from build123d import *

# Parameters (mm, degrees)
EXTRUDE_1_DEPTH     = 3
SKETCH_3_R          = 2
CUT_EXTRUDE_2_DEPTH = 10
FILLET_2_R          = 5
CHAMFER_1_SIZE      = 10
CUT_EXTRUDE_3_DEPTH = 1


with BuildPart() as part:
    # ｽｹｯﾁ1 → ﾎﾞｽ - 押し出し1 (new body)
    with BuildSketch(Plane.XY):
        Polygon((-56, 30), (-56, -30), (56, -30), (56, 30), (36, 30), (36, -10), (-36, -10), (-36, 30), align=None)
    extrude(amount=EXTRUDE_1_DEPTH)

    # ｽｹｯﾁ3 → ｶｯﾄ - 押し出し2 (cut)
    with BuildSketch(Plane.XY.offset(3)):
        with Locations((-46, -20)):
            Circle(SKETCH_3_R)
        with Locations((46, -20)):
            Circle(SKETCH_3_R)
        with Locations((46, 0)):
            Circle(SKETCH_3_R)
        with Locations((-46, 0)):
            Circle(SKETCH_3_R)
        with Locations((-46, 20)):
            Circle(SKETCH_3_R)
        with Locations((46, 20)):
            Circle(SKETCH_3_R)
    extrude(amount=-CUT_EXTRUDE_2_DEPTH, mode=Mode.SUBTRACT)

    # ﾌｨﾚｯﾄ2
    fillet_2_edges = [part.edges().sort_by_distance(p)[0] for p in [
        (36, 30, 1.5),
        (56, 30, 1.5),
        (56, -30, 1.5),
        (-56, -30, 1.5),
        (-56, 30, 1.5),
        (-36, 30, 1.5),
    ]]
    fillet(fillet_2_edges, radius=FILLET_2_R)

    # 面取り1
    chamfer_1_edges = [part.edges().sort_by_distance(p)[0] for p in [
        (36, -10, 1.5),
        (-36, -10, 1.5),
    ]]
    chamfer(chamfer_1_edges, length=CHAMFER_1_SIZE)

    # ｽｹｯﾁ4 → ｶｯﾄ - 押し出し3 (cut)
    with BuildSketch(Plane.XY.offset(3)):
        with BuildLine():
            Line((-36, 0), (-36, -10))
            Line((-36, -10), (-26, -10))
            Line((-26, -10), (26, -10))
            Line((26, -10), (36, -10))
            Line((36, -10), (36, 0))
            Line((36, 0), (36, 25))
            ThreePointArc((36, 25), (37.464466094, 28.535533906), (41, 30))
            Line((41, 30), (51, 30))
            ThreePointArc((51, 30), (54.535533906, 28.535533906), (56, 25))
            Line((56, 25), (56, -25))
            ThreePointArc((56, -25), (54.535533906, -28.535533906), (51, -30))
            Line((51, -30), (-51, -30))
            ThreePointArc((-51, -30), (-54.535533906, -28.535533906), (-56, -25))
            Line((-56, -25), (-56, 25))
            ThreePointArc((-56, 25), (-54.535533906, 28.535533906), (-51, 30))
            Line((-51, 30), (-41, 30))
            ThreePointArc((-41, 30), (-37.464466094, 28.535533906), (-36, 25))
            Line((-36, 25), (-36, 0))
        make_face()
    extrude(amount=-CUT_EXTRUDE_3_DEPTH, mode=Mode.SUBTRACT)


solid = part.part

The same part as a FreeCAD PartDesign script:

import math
import FreeCAD as App
import Part
import Sketcher

V = App.Vector
Q = App.Units.Quantity


def edges_at(feature, points):
    """Names of the edges that pass closest to the given points."""
    edges = feature.Shape.Edges
    near = lambda p: min(range(len(edges)), key=lambda i: edges[i].distToShape(Part.Vertex(*p))[0])
    return sorted({f"Edge{near(p) + 1}" for p in points})

doc = App.newDocument("Part")
body = doc.addObject("PartDesign::Body", "Body")

sketch1 = doc.addObject("Sketcher::SketchObject", "Sketch")
body.addObject(sketch1)
sketch1.AttachmentSupport = (doc.XY_Plane, [""])
sketch1.MapMode = "FlatFace"
sketch1.addGeometry(Part.LineSegment(V(-56, 30, 0), V(-56, -30, 0)), False)
sketch1.addGeometry(Part.LineSegment(V(-56, -30, 0), V(56, -30, 0)), False)
sketch1.addGeometry(Part.LineSegment(V(56, -30, 0), V(56, 30, 0)), False)
sketch1.addGeometry(Part.LineSegment(V(56, 30, 0), V(36, 30, 0)), False)
sketch1.addGeometry(Part.LineSegment(V(36, 30, 0), V(36, -10, 0)), False)
sketch1.addGeometry(Part.LineSegment(V(36, -10, 0), V(-36, -10, 0)), False)
sketch1.addGeometry(Part.LineSegment(V(-36, -10, 0), V(-36, 30, 0)), False)
sketch1.addGeometry(Part.LineSegment(V(-36, 30, 0), V(-56, 30, 0)), False)
sketch1.addConstraint(Sketcher.Constraint("Coincident", 0, 2, 1, 1))
sketch1.addConstraint(Sketcher.Constraint("Coincident", 1, 2, 2, 1))
sketch1.addConstraint(Sketcher.Constraint("Coincident", 2, 2, 3, 1))
sketch1.addConstraint(Sketcher.Constraint("Coincident", 3, 2, 4, 1))
sketch1.addConstraint(Sketcher.Constraint("Coincident", 4, 2, 5, 1))
sketch1.addConstraint(Sketcher.Constraint("Coincident", 5, 2, 6, 1))
sketch1.addConstraint(Sketcher.Constraint("Coincident", 6, 2, 7, 1))
sketch1.addConstraint(Sketcher.Constraint("Coincident", 7, 2, 0, 1))
sketch1.addConstraint(Sketcher.Constraint("Vertical", 0))
sketch1.addConstraint(Sketcher.Constraint("Horizontal", 1))
sketch1.addConstraint(Sketcher.Constraint("Vertical", 2))
sketch1.addConstraint(Sketcher.Constraint("Horizontal", 3))
sketch1.addConstraint(Sketcher.Constraint("Vertical", 4))
sketch1.addConstraint(Sketcher.Constraint("Horizontal", 5))
sketch1.addConstraint(Sketcher.Constraint("Vertical", 6))
sketch1.addConstraint(Sketcher.Constraint("Horizontal", 7))
sketch1.addConstraint(Sketcher.Constraint("Symmetric", 0, 2, 2, 2, -1, 1))
sketch1.addConstraint(Sketcher.Constraint("Symmetric", 3, 2, 6, 2, -2))
sketch1.addConstraint(Sketcher.Constraint("DistanceX", 1, 1, 1, 2, Q("112 mm")))
sketch1.addConstraint(Sketcher.Constraint("DistanceX", 3, 2, 3, 1, Q("20 mm")))
sketch1.addConstraint(Sketcher.Constraint("DistanceY", 0, 2, 0, 1, Q("60 mm")))
sketch1.addConstraint(Sketcher.Constraint("DistanceY", 4, 2, 4, 1, Q("40 mm")))
pad1 = doc.addObject("PartDesign::Pad", "Pad")
body.addObject(pad1)
pad1.Profile = sketch1
pad1.Length = 3

sketch2 = doc.addObject("Sketcher::SketchObject", "Sketch001")
body.addObject(sketch2)
sketch2.AttachmentSupport = (doc.XY_Plane, [""])
sketch2.MapMode = "FlatFace"
sketch2.AttachmentOffset = App.Placement(V(0, 0, 3), App.Rotation())
sketch2.addGeometry(Part.Circle(V(-46, -20, 0), V(0, 0, 1), 2), False)
sketch2.addGeometry(Part.Circle(V(46, -20, 0), V(0, 0, 1), 2), False)
sketch2.addGeometry(Part.Circle(V(46, 0, 0), V(0, 0, 1), 2), False)
sketch2.addGeometry(Part.Circle(V(-46, 0, 0), V(0, 0, 1), 2), False)
sketch2.addGeometry(Part.Circle(V(-46, 20, 0), V(0, 0, 1), 2), False)
sketch2.addGeometry(Part.Circle(V(46, 20, 0), V(0, 0, 1), 2), False)
sketch2.addConstraint(Sketcher.Constraint("Equal", 0, 1))
sketch2.addConstraint(Sketcher.Constraint("Equal", 1, 2))
sketch2.addConstraint(Sketcher.Constraint("Equal", 2, 3))
sketch2.addConstraint(Sketcher.Constraint("Equal", 3, 4))
sketch2.addConstraint(Sketcher.Constraint("Equal", 4, 5))
sketch2.addConstraint(Sketcher.Constraint("Symmetric", 2, 3, 3, 3, -1, 1))
sketch2.addConstraint(Sketcher.Constraint("Symmetric", 1, 3, 4, 3, -1, 1))
sketch2.addConstraint(Sketcher.Constraint("Symmetric", 0, 3, 5, 3, -1, 1))
sketch2.addConstraint(Sketcher.Constraint("Symmetric", 0, 3, 1, 3, -2))
sketch2.addConstraint(Sketcher.Constraint("PointOnObject", 2, 3, -1))
sketch2.addConstraint(Sketcher.Constraint("Vertical", 1, 3, 2, 3))
sketch2.addConstraint(Sketcher.Constraint("Diameter", 0, Q("4 mm")))
sketch2.addConstraint(Sketcher.Constraint("DistanceX", 0, 3, -1, 1, Q("46 mm")))
sketch2.addConstraint(Sketcher.Constraint("DistanceY", 0, 3, -1, 1, Q("20 mm")))
pocket1 = doc.addObject("PartDesign::Pocket", "Pocket")
body.addObject(pocket1)
pocket1.Profile = sketch2
pocket1.Length = 10
doc.recompute()

fillet = doc.addObject("PartDesign::Fillet", "Fillet")
body.addObject(fillet)
fillet.Base = (pocket1, edges_at(pocket1, [
    (36, 30, 1.5),
    (56, 30, 1.5),
    (56, -30, 1.5),
    (-56, -30, 1.5),
    (-56, 30, 1.5),
    (-36, 30, 1.5),
]))
fillet.Radius = 5
doc.recompute()

chamfer = doc.addObject("PartDesign::Chamfer", "Chamfer")
body.addObject(chamfer)
chamfer.Base = (fillet, edges_at(fillet, [(36, -10, 1.5), (-36, -10, 1.5)]))
chamfer.Size = 10

sketch3 = doc.addObject("Sketcher::SketchObject", "Sketch002")
body.addObject(sketch3)
sketch3.AttachmentSupport = (doc.XY_Plane, [""])
sketch3.MapMode = "FlatFace"
sketch3.AttachmentOffset = App.Placement(V(0, 0, 3), App.Rotation())
sketch3.addGeometry(Part.LineSegment(V(36, -10, 0), V(-36, -10, 0)), False)
sketch3.addGeometry(Part.LineSegment(V(-36, -10, 0), V(-36, 25, 0)), False)
sketch3.addGeometry(Part.ArcOfCircle(Part.Circle(V(-41, 25, 0), V(0, 0, 1), 5), math.radians(0), math.radians(90)), False)
sketch3.addGeometry(Part.LineSegment(V(-41, 30, 0), V(-51, 30, 0)), False)
sketch3.addGeometry(Part.ArcOfCircle(Part.Circle(V(-51, 25, 0), V(0, 0, 1), 5), math.radians(90), math.radians(180)), False)
sketch3.addGeometry(Part.LineSegment(V(-56, 25, 0), V(-56, -25, 0)), False)
sketch3.addGeometry(Part.ArcOfCircle(Part.Circle(V(-51, -25, 0), V(0, 0, 1), 5), math.radians(180), math.radians(270)), False)
sketch3.addGeometry(Part.LineSegment(V(-51, -30, 0), V(51, -30, 0)), False)
sketch3.addGeometry(Part.ArcOfCircle(Part.Circle(V(51, -25, 0), V(0, 0, 1), 5), math.radians(-90), math.radians(0)), False)
sketch3.addGeometry(Part.LineSegment(V(56, -25, 0), V(56, 25, 0)), False)
sketch3.addGeometry(Part.ArcOfCircle(Part.Circle(V(51, 25, 0), V(0, 0, 1), 5), math.radians(0), math.radians(90)), False)
sketch3.addGeometry(Part.LineSegment(V(51, 30, 0), V(41, 30, 0)), False)
sketch3.addGeometry(Part.ArcOfCircle(Part.Circle(V(41, 25, 0), V(0, 0, 1), 5), math.radians(90), math.radians(180)), False)
sketch3.addGeometry(Part.LineSegment(V(36, 25, 0), V(36, -10, 0)), False)
sketch3.addConstraint(Sketcher.Constraint("Coincident", 0, 2, 1, 1))
sketch3.addConstraint(Sketcher.Constraint("Tangent", 1, 2, 2, 1))
sketch3.addConstraint(Sketcher.Constraint("Tangent", 2, 2, 3, 1))
sketch3.addConstraint(Sketcher.Constraint("Tangent", 3, 2, 4, 1))
sketch3.addConstraint(Sketcher.Constraint("Tangent", 4, 2, 5, 1))
sketch3.addConstraint(Sketcher.Constraint("Tangent", 5, 2, 6, 1))
sketch3.addConstraint(Sketcher.Constraint("Tangent", 6, 2, 7, 1))
sketch3.addConstraint(Sketcher.Constraint("Tangent", 7, 2, 8, 1))
sketch3.addConstraint(Sketcher.Constraint("Tangent", 8, 2, 9, 1))
sketch3.addConstraint(Sketcher.Constraint("Tangent", 9, 2, 10, 1))
sketch3.addConstraint(Sketcher.Constraint("Tangent", 10, 2, 11, 1))
sketch3.addConstraint(Sketcher.Constraint("Tangent", 11, 2, 12, 1))
sketch3.addConstraint(Sketcher.Constraint("Tangent", 12, 2, 13, 1))
sketch3.addConstraint(Sketcher.Constraint("Coincident", 13, 2, 0, 1))
sketch3.addConstraint(Sketcher.Constraint("Horizontal", 0))
sketch3.addConstraint(Sketcher.Constraint("Vertical", 1))
sketch3.addConstraint(Sketcher.Constraint("Horizontal", 3))
sketch3.addConstraint(Sketcher.Constraint("Vertical", 5))
sketch3.addConstraint(Sketcher.Constraint("Horizontal", 7))
sketch3.addConstraint(Sketcher.Constraint("Vertical", 9))
sketch3.addConstraint(Sketcher.Constraint("Horizontal", 11))
sketch3.addConstraint(Sketcher.Constraint("Vertical", 13))
sketch3.addConstraint(Sketcher.Constraint("Equal", 2, 4))
sketch3.addConstraint(Sketcher.Constraint("Equal", 4, 6))
sketch3.addConstraint(Sketcher.Constraint("Equal", 6, 8))
sketch3.addConstraint(Sketcher.Constraint("Equal", 8, 10))
sketch3.addConstraint(Sketcher.Constraint("Equal", 10, 12))
sketch3.addConstraint(Sketcher.Constraint("Symmetric", 4, 3, 8, 3, -1, 1))
sketch3.addConstraint(Sketcher.Constraint("Symmetric", 2, 3, 12, 3, -2))
sketch3.addConstraint(Sketcher.Constraint("Radius", 2, Q("5 mm")))
sketch3.addConstraint(Sketcher.Constraint("DistanceX", 0, 2, 0, 1, Q("72 mm")))
sketch3.addConstraint(Sketcher.Constraint("DistanceX", 3, 2, 3, 1, Q("10 mm")))
sketch3.addConstraint(Sketcher.Constraint("DistanceY", 1, 1, 1, 2, Q("35 mm")))
sketch3.addConstraint(Sketcher.Constraint("DistanceY", 5, 2, 5, 1, Q("50 mm")))
pocket2 = doc.addObject("PartDesign::Pocket", "Pocket001")
body.addObject(pocket2)
pocket2.Profile = sketch3
pocket2.Length = 1

doc.recompute()
